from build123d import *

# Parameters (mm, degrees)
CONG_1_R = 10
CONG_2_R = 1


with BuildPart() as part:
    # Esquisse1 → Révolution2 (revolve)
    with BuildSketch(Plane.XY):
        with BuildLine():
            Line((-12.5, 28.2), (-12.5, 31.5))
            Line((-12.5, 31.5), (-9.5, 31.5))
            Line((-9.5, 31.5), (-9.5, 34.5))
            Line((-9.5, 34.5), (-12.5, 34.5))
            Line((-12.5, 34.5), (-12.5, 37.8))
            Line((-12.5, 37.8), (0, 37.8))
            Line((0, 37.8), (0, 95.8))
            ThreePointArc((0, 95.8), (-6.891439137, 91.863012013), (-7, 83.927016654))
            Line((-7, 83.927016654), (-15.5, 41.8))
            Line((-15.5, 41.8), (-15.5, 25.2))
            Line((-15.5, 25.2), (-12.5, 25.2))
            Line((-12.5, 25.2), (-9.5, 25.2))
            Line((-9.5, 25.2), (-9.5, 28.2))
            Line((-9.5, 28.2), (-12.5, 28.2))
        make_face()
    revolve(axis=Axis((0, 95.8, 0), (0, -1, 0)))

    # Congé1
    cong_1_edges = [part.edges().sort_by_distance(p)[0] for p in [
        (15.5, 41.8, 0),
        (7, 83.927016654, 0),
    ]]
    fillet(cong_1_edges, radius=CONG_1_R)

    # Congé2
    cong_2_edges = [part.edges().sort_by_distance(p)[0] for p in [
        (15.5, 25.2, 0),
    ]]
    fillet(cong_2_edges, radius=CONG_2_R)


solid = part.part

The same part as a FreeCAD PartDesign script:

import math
import FreeCAD as App
import Part
import Sketcher
from FreeCAD import Vector
Q = App.Units.Quantity


def edges_at(feature, points):
    """Names of the edges that pass closest to the given points."""
    edges = feature.Shape.Edges
    near = lambda p: min(range(len(edges)), key=lambda i: edges[i].distToShape(Part.Vertex(*p))[0])
    return sorted({f"Edge{near(p) + 1}" for p in points})

doc = App.newDocument("Part")
body = doc.addObject("PartDesign::Body", "Body")

# Sketch on XY plane
sketch1 = body.newObject("Sketcher::SketchObject", "Sketch")
sketch1.AttachmentSupport = (doc.getObject("XY_Plane"), [""])
sketch1.MapMode = "FlatFace"
sketch1.addGeometry([
    Part.LineSegment(Vector(-12.5, 28.2, 0), Vector(-12.5, 31.5, 0)),  # 0
    Part.LineSegment(Vector(-12.5, 31.5, 0), Vector(-9.5, 31.5, 0)),  # 1
    Part.LineSegment(Vector(-9.5, 31.5, 0), Vector(-9.5, 34.5, 0)),  # 2
    Part.LineSegment(Vector(-9.5, 34.5, 0), Vector(-12.5, 34.5, 0)),  # 3
    Part.LineSegment(Vector(-12.5, 34.5, 0), Vector(-12.5, 37.8, 0)),  # 4
    Part.LineSegment(Vector(-12.5, 37.8, 0), Vector(0, 37.8, 0)),  # 5
    Part.LineSegment(Vector(0, 37.8, 0), Vector(0, 95.8, 0)),  # 6
    Part.ArcOfCircle(Part.Circle(Vector(0, 87.8, 0), Vector(0, 0, 1), 8), math.radians(90), math.radians(208.955024)),  # 7
    Part.LineSegment(Vector(-7, 83.927017, 0), Vector(-15.5, 41.8, 0)),  # 8
    Part.LineSegment(Vector(-15.5, 41.8, 0), Vector(-15.5, 25.2, 0)),  # 9
    Part.LineSegment(Vector(-15.5, 25.2, 0), Vector(-9.5, 25.2, 0)),  # 10
    Part.LineSegment(Vector(-9.5, 25.2, 0), Vector(-9.5, 28.2, 0)),  # 11
    Part.LineSegment(Vector(-9.5, 28.2, 0), Vector(-12.5, 28.2, 0)),  # 12
], False)
sketch1.addConstraint([
    Sketcher.Constraint("Coincident", 0, 2, 1, 1),
    Sketcher.Constraint("Coincident", 1, 2, 2, 1),
    Sketcher.Constraint("Coincident", 2, 2, 3, 1),
    Sketcher.Constraint("Coincident", 3, 2, 4, 1),
    Sketcher.Constraint("Coincident", 4, 2, 5, 1),
    Sketcher.Constraint("Coincident", 5, 2, 6, 1),
    Sketcher.Constraint("Coincident", 6, 2, 7, 1),
    Sketcher.Constraint("Coincident", 7, 2, 8, 1),
    Sketcher.Constraint("Coincident", 8, 2, 9, 1),
    Sketcher.Constraint("Coincident", 9, 2, 10, 1),
    Sketcher.Constraint("Coincident", 10, 2, 11, 1),
    Sketcher.Constraint("Coincident", 11, 2, 12, 1),
    Sketcher.Constraint("Coincident", 12, 2, 0, 1),
    Sketcher.Constraint("Vertical", 0),
    Sketcher.Constraint("Horizontal", 1),
    Sketcher.Constraint("Vertical", 2),
    Sketcher.Constraint("Horizontal", 3),
    Sketcher.Constraint("Vertical", 4),
    Sketcher.Constraint("Horizontal", 5),
    Sketcher.Constraint("Vertical", 6),
    Sketcher.Constraint("Vertical", 9),
    Sketcher.Constraint("Horizontal", 10),
    Sketcher.Constraint("Vertical", 11),
    Sketcher.Constraint("Horizontal", 12),
    Sketcher.Constraint("PointOnObject", 7, 3, -2),
    Sketcher.Constraint("PointOnObject", 5, 2, -2),
    Sketcher.Constraint("Vertical", 0, 2, 3, 2),
    Sketcher.Constraint("Vertical", 2, 2, 10, 2),
    Sketcher.Constraint("Equal", 12, 2),
    Sketcher.Constraint("Equal", 0, 4),
    Sketcher.Constraint("Equal", 2, 11),
    Sketcher.Constraint("Radius", 7, Q("8 mm")),
    Sketcher.Constraint("DistanceX", 1, 1, 1, 2, Q("3 mm")),
    Sketcher.Constraint("DistanceX", 10, 1, 10, 2, Q("6 mm")),
    Sketcher.Constraint("DistanceY", 6, 1, 6, 2, Q("58 mm")),
    Sketcher.Constraint("DistanceX", 5, 1, 5, 2, Q("12.5 mm")),
    Sketcher.Constraint("DistanceY", 0, 1, 0, 2, Q("3.3 mm")),
    Sketcher.Constraint("DistanceY", 9, 2, 9, 1, Q("16.6 mm")),
    Sketcher.Constraint("DistanceX", 7, 2, -1, 1, Q("7 mm")),
    Sketcher.Constraint("DistanceY", -1, 1, 7, 3, Q("87.8 mm")),
])
revolution = body.newObject("PartDesign::Revolution", "Revolution")
revolution.Profile = sketch1
revolution.ReferenceAxis = (sketch1, ["V_Axis"])
revolution.Angle = 360
doc.recompute()

fillet = body.newObject("PartDesign::Fillet", "Fillet")
fillet.Base = (revolution, edges_at(revolution, [(15.5, 41.8, 0), (7, 83.927, 0)]))
fillet.Radius = 10
doc.recompute()

fillet2 = body.newObject("PartDesign::Fillet", "Fillet001")
fillet2.Base = (fillet, edges_at(fillet, [(15.5, 25.2, 0)]))
fillet2.Radius = 1

doc.recompute()
